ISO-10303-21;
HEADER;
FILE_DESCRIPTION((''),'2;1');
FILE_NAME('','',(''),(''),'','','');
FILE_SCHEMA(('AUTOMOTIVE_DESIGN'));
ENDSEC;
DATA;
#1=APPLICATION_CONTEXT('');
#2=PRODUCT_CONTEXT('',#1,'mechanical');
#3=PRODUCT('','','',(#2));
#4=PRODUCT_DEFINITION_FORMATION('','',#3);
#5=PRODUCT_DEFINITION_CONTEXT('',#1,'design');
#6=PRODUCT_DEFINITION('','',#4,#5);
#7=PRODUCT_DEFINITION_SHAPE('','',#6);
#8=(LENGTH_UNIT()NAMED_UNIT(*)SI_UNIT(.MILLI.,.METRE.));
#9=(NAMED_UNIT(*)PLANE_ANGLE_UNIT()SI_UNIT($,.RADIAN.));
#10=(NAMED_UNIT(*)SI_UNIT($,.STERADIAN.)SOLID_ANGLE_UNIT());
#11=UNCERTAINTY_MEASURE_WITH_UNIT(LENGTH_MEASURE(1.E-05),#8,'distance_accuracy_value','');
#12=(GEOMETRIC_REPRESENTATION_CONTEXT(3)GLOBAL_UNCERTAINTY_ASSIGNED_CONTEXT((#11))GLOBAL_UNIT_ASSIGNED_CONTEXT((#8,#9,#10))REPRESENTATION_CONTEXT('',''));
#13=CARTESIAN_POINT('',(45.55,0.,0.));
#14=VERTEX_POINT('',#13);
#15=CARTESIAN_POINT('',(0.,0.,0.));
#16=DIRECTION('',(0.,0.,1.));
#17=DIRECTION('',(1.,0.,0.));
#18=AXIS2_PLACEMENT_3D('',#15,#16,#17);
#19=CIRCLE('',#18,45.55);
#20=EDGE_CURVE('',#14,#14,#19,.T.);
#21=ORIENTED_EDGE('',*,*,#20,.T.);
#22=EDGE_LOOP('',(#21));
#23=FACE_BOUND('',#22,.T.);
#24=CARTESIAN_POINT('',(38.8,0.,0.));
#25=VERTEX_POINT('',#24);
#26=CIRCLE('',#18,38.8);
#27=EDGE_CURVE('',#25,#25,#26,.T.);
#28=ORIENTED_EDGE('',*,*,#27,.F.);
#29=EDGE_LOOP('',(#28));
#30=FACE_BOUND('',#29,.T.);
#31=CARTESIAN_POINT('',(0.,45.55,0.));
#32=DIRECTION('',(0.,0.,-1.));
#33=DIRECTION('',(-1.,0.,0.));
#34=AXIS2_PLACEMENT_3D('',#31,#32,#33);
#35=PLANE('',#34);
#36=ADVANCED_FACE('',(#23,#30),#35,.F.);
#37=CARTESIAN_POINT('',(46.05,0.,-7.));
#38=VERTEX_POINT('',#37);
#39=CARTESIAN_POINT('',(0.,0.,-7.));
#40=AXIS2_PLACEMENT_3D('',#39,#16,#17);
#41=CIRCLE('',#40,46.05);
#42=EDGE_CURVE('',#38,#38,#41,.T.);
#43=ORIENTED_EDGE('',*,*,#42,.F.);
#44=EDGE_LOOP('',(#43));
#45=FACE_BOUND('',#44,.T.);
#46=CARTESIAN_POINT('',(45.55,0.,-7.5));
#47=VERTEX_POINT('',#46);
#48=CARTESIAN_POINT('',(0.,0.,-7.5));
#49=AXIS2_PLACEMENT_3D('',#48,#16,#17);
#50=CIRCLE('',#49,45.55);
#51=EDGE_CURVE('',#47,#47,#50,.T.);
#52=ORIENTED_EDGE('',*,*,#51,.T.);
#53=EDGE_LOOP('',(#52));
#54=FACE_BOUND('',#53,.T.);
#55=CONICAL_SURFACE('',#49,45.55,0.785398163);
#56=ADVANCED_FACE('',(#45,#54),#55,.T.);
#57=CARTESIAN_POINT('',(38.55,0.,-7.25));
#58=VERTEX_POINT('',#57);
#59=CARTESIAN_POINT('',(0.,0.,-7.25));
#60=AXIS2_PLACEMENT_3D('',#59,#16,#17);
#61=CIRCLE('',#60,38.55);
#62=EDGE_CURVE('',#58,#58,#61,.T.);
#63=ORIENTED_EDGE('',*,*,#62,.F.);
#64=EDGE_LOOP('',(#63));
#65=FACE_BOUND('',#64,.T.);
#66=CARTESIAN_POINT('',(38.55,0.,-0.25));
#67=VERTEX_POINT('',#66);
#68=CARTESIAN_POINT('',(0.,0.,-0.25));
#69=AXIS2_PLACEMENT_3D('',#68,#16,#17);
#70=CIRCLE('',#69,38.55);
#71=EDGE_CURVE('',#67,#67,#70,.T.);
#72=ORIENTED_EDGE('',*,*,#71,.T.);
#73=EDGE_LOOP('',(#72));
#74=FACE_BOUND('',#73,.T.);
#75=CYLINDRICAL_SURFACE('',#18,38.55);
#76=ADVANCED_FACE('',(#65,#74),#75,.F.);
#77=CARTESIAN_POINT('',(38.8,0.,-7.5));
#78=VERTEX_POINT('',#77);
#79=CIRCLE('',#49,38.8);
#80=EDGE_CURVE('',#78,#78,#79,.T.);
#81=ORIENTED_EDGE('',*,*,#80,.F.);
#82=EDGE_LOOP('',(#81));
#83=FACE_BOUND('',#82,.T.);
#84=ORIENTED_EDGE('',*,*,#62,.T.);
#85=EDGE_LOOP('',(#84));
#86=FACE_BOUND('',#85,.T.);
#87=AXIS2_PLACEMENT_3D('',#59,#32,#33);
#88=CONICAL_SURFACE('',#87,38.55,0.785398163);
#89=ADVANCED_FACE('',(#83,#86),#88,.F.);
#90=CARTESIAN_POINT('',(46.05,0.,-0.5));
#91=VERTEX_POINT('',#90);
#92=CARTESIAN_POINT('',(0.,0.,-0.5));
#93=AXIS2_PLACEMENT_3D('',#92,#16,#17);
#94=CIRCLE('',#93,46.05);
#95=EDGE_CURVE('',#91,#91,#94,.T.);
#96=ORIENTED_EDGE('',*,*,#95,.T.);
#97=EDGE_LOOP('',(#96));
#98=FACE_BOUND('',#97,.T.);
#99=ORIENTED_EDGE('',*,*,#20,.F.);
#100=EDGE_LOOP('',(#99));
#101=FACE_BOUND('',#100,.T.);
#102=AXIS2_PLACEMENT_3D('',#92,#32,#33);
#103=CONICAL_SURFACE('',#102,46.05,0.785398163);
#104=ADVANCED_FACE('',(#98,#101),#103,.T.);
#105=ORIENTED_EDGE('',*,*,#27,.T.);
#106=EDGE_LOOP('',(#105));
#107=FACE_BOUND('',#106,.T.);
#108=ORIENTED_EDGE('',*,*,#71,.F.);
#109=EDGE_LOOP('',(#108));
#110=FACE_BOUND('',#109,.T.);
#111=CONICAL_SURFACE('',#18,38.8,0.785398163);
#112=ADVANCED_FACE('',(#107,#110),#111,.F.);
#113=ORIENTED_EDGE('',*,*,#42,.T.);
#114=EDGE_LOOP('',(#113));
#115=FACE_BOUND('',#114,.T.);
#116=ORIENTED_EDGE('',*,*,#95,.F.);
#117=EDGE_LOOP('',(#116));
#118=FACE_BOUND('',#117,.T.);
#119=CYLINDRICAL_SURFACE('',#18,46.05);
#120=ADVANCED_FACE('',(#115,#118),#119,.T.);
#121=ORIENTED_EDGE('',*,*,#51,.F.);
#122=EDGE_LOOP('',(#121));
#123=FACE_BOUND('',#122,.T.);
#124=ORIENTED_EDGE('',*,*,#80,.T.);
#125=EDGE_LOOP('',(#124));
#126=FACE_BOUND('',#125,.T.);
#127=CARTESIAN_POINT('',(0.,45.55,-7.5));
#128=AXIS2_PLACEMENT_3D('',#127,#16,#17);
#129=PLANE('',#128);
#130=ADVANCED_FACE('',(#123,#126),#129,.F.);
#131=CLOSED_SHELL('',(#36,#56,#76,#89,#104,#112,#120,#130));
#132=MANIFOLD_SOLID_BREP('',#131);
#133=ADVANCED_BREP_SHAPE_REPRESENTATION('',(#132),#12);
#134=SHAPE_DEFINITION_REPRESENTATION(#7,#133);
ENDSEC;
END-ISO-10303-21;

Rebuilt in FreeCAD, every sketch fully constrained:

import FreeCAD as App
import Part
import Sketcher
Q = App.Units.Quantity

doc = App.newDocument("Part")
body = doc.addObject("PartDesign::Body", "Body")

# Sketch on YZ plane
sketch1 = body.newObject("Sketcher::SketchObject", "Sketch")
sketch1.AttachmentSupport = (doc.getObject("YZ_Plane"), [""])
sketch1.MapMode = "FlatFace"
sketch1.addGeometry([
    Part.LineSegment(App.Vector(38.8, 0, 0), App.Vector(38.55, -0.25, 0)),  # 0
    Part.LineSegment(App.Vector(38.55, -0.25, 0), App.Vector(38.55, -7.25, 0)),  # 1
    Part.LineSegment(App.Vector(38.55, -7.25, 0), App.Vector(38.8, -7.5, 0)),  # 2
    Part.LineSegment(App.Vector(38.8, -7.5, 0), App.Vector(45.55, -7.5, 0)),  # 3
    Part.LineSegment(App.Vector(45.55, -7.5, 0), App.Vector(46.05, -7, 0)),  # 4
    Part.LineSegment(App.Vector(46.05, -7, 0), App.Vector(46.05, -0.5, 0)),  # 5
    Part.LineSegment(App.Vector(46.05, -0.5, 0), App.Vector(45.55, 0, 0)),  # 6
    Part.LineSegment(App.Vector(45.55, 0, 0), App.Vector(38.8, 0, 0)),  # 7
], False)
sketch1.addConstraint([
    Sketcher.Constraint("Coincident", 0, 2, 1, 1),
    Sketcher.Constraint("Coincident", 1, 2, 2, 1),
    Sketcher.Constraint("Coincident", 2, 2, 3, 1),
    Sketcher.Constraint("Coincident", 3, 2, 4, 1),
    Sketcher.Constraint("Coincident", 4, 2, 5, 1),
    Sketcher.Constraint("Coincident", 5, 2, 6, 1),
    Sketcher.Constraint("Coincident", 6, 2, 7, 1),
    Sketcher.Constraint("Coincident", 7, 2, 0, 1),
    Sketcher.Constraint("Vertical", 1),
    Sketcher.Constraint("Horizontal", 3),
    Sketcher.Constraint("Vertical", 5),
    Sketcher.Constraint("Horizontal", 7),
    Sketcher.Constraint("PointOnObject", 6, 2, -1),
    Sketcher.Constraint("Perpendicular", 0, 2),
    Sketcher.Constraint("Perpendicular", 2, 4),
    Sketcher.Constraint("Perpendicular", 4, 6),
    Sketcher.Constraint("Vertical", 3, 2, 6, 2),
    Sketcher.Constraint("Vertical", 2, 2, 7, 2),
    Sketcher.Constraint("Equal", 0, 2),
    Sketcher.Constraint("DistanceY", 1, 2, 1, 1, Q("7 mm")),
    Sketcher.Constraint("DistanceY", 5, 1, 5, 2, Q("6.5 mm")),
    Sketcher.Constraint("DistanceY", 4, 2, -1, 1, Q("7 mm")),
    Sketcher.Constraint("DistanceX", 1, 2, 3, 2, Q("7 mm")),
    Sketcher.Constraint("DistanceX", -1, 1, 2, 2, Q("38.8 mm")),
])
revolution = body.newObject("PartDesign::Revolution", "Revolution")
revolution.Profile = sketch1
revolution.ReferenceAxis = (sketch1, ["V_Axis"])
revolution.Angle = 360

doc.recompute()
